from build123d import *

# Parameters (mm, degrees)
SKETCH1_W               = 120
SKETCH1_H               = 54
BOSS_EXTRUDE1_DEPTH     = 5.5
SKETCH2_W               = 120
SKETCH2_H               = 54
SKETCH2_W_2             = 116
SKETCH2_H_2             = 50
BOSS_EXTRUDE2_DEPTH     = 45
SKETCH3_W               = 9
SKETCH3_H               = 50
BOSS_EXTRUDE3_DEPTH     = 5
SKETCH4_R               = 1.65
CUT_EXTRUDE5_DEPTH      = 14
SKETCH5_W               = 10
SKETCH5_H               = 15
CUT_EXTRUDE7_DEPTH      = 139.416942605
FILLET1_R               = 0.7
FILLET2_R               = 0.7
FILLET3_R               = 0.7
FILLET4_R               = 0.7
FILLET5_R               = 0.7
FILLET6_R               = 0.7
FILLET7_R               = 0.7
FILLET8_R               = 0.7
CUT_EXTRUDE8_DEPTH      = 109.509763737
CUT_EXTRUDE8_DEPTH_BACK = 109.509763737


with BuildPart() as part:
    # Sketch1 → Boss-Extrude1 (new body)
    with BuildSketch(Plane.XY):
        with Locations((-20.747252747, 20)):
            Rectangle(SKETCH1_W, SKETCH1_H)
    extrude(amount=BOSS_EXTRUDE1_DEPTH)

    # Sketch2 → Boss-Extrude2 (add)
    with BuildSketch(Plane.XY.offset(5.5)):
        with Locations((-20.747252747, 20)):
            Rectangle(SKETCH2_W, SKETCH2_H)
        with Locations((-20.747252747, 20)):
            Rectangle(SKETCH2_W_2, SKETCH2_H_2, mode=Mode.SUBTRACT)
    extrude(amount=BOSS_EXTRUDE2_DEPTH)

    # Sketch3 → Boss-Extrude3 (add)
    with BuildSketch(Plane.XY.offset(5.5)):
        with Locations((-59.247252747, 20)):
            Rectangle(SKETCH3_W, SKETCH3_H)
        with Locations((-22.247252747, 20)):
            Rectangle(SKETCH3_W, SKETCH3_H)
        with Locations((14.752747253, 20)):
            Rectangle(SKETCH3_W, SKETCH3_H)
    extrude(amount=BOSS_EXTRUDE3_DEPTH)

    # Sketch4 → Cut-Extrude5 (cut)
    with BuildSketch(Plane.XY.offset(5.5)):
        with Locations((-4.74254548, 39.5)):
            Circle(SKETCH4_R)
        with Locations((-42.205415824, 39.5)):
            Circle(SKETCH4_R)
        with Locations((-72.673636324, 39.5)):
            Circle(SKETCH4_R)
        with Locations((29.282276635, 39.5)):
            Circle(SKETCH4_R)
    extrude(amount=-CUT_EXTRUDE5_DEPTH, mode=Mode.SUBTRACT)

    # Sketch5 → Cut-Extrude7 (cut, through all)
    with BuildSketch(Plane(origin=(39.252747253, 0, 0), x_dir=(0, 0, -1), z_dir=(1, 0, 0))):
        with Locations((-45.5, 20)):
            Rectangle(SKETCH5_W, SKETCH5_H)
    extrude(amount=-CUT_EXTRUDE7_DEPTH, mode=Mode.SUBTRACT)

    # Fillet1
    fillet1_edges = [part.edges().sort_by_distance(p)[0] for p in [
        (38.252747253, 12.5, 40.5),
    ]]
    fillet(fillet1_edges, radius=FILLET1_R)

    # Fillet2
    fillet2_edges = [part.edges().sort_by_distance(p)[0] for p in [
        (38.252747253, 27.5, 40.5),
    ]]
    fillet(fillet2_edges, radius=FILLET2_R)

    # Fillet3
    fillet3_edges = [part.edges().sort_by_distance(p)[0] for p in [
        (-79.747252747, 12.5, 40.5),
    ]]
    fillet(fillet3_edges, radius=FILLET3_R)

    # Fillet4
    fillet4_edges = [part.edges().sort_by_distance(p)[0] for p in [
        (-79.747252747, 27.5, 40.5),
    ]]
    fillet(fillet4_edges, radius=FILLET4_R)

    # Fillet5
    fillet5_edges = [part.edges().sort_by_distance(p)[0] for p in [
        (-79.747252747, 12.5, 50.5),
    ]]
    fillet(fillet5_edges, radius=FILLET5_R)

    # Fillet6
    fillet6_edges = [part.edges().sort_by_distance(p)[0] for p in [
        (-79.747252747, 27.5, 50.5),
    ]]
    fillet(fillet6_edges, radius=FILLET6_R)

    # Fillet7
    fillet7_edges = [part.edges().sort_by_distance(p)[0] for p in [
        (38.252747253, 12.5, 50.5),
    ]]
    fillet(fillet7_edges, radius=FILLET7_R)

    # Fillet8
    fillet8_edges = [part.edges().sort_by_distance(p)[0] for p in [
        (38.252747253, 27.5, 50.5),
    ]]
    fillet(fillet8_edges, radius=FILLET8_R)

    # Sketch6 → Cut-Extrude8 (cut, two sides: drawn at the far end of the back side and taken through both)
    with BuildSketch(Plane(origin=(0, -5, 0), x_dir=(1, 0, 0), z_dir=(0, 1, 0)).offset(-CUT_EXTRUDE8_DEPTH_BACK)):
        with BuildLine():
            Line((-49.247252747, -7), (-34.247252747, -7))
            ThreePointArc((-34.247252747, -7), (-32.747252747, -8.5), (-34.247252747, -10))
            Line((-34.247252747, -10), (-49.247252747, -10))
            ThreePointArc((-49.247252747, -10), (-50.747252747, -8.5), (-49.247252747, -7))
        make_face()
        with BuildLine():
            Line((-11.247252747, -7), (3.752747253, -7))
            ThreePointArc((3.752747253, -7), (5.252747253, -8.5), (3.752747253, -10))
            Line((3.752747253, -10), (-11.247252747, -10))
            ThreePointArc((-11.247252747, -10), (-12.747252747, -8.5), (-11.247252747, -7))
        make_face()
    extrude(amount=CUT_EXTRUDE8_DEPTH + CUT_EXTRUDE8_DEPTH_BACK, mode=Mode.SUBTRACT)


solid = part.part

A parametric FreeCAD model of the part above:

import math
import FreeCAD as App
import Part
import Sketcher

V = App.Vector
Q = App.Units.Quantity


def edges_at(feature, points):
    """Names of the edges that pass closest to the given points."""
    edges = feature.Shape.Edges
    near = lambda p: min(range(len(edges)), key=lambda i: edges[i].distToShape(Part.Vertex(*p))[0])
    return sorted({f"Edge{near(p) + 1}" for p in points})

doc = App.newDocument("Part")
body = doc.addObject("PartDesign::Body", "Body")

sketch1 = body.newObject("Sketcher::SketchObject", "Sketch")
sketch1.AttachmentSupport = (doc.getObject("XY_Plane"), [""])
sketch1.MapMode = "FlatFace"
sketch1.addGeometry([
    Part.LineSegment(V(-81, 47, 0), V(-81, -7, 0)),
    Part.LineSegment(V(-81, -7, 0), V(39, -7, 0)),
    Part.LineSegment(V(39, -7, 0), V(39, 47, 0)),
    Part.LineSegment(V(39, 47, 0), V(-81, 47, 0)),
], False)
sketch1.addConstraint([
    Sketcher.Constraint("Coincident", 0, 2, 1, 1),
    Sketcher.Constraint("Coincident", 1, 2, 2, 1),
    Sketcher.Constraint("Coincident", 2, 2, 3, 1),
    Sketcher.Constraint("Coincident", 3, 2, 0, 1),
    Sketcher.Constraint("Vertical", 0),
    Sketcher.Constraint("Horizontal", 1),
    Sketcher.Constraint("Vertical", 2),
    Sketcher.Constraint("Horizontal", 3),
    Sketcher.Constraint("DistanceX", 1, 1, 1, 2, Q("120 mm")),
    Sketcher.Constraint("DistanceY", 0, 2, 0, 1, Q("54 mm")),
    Sketcher.Constraint("DistanceY", 0, 2, -1, 1, Q("7 mm")),
    Sketcher.Constraint("DistanceX", 0, 2, -1, 1, Q("80.747253 mm")),
])
pad1 = body.newObject("PartDesign::Pad", "Pad")
pad1.Profile = sketch1
pad1.Length = 5.5

sketch2 = body.newObject("Sketcher::SketchObject", "Sketch001")
sketch2.AttachmentSupport = (doc.getObject("XY_Plane"), [""])
sketch2.MapMode = "FlatFace"
sketch2.AttachmentOffset = App.Placement(V(0, 0, 5.5), App.Rotation())
sketch2.addGeometry([
    Part.LineSegment(V(-81, 47, 0), V(-81, -7, 0)),
    Part.LineSegment(V(-81, -7, 0), V(39, -7, 0)),
    Part.LineSegment(V(39, -7, 0), V(39, 47, 0)),
    Part.LineSegment(V(39, 47, 0), V(-81, 47, 0)),
    Part.LineSegment(V(37, -5, 0), V(-79, -5, 0)),
    Part.LineSegment(V(-79, -5, 0), V(-79, 45, 0)),
    Part.LineSegment(V(-79, 45, 0), V(37, 45, 0)),
    Part.LineSegment(V(37, 45, 0), V(37, -5, 0)),
], False)
sketch2.addConstraint([
    Sketcher.Constraint("Coincident", 0, 2, 1, 1),
    Sketcher.Constraint("Coincident", 1, 2, 2, 1),
    Sketcher.Constraint("Coincident", 2, 2, 3, 1),
    Sketcher.Constraint("Coincident", 3, 2, 0, 1),
    Sketcher.Constraint("Coincident", 4, 2, 5, 1),
    Sketcher.Constraint("Coincident", 5, 2, 6, 1),
    Sketcher.Constraint("Coincident", 6, 2, 7, 1),
    Sketcher.Constraint("Coincident", 7, 2, 4, 1),
    Sketcher.Constraint("Vertical", 0),
    Sketcher.Constraint("Horizontal", 1),
    Sketcher.Constraint("Vertical", 2),
    Sketcher.Constraint("Horizontal", 3),
    Sketcher.Constraint("Horizontal", 4),
    Sketcher.Constraint("Vertical", 5),
    Sketcher.Constraint("Horizontal", 6),
    Sketcher.Constraint("Vertical", 7),
    Sketcher.Constraint("DistanceX", 1, 1, 1, 2, Q("120 mm")),
    Sketcher.Constraint("DistanceX", 4, 2, 4, 1, Q("116 mm")),
    Sketcher.Constraint("DistanceY", 0, 2, 0, 1, Q("54 mm")),
    Sketcher.Constraint("DistanceY", 5, 1, 5, 2, Q("50 mm")),
    Sketcher.Constraint("DistanceY", 0, 2, -1, 1, Q("7 mm")),
    Sketcher.Constraint("DistanceY", 4, 2, -1, 1, Q("5 mm")),
    Sketcher.Constraint("DistanceX", 0, 2, 4, 2, Q("2 mm")),
    Sketcher.Constraint("DistanceX", 0, 2, -1, 1, Q("80.747253 mm")),
])
pad2 = body.newObject("PartDesign::Pad", "Pad001")
pad2.Profile = sketch2
pad2.Length = 45

sketch3 = body.newObject("Sketcher::SketchObject", "Sketch002")
sketch3.AttachmentSupport = (doc.getObject("XY_Plane"), [""])
sketch3.MapMode = "FlatFace"
sketch3.AttachmentOffset = App.Placement(V(0, 0, 5.5), App.Rotation())
sketch3.addGeometry([
    Part.LineSegment(V(-64, 45, 0), V(-64, -5, 0)),
    Part.LineSegment(V(-64, -5, 0), V(-55, -5, 0)),
    Part.LineSegment(V(-55, -5, 0), V(-55, 45, 0)),
    Part.LineSegment(V(-55, 45, 0), V(-64, 45, 0)),
    Part.LineSegment(V(-27, 45, 0), V(-27, -5, 0)),
    Part.LineSegment(V(-27, -5, 0), V(-18, -5, 0)),
    Part.LineSegment(V(-18, -5, 0), V(-18, 45, 0)),
    Part.LineSegment(V(-18, 45, 0), V(-27, 45, 0)),
    Part.LineSegment(V(10, 45, 0), V(10, -5, 0)),
    Part.LineSegment(V(10, -5, 0), V(19, -5, 0)),
    Part.LineSegment(V(19, -5, 0), V(19, 45, 0)),
    Part.LineSegment(V(19, 45, 0), V(10, 45, 0)),
], False)
sketch3.addConstraint([
    Sketcher.Constraint("Coincident", 0, 2, 1, 1),
    Sketcher.Constraint("Coincident", 1, 2, 2, 1),
    Sketcher.Constraint("Coincident", 2, 2, 3, 1),
    Sketcher.Constraint("Coincident", 3, 2, 0, 1),
    Sketcher.Constraint("Coincident", 4, 2, 5, 1),
    Sketcher.Constraint("Coincident", 5, 2, 6, 1),
    Sketcher.Constraint("Coincident", 6, 2, 7, 1),
    Sketcher.Constraint("Coincident", 7, 2, 4, 1),
    Sketcher.Constraint("Coincident", 8, 2, 9, 1),
    Sketcher.Constraint("Coincident", 9, 2, 10, 1),
    Sketcher.Constraint("Coincident", 10, 2, 11, 1),
    Sketcher.Constraint("Coincident", 11, 2, 8, 1),
    Sketcher.Constraint("Vertical", 0),
    Sketcher.Constraint("Horizontal", 1),
    Sketcher.Constraint("Vertical", 2),
    Sketcher.Constraint("Horizontal", 3),
    Sketcher.Constraint("Vertical", 4),
    Sketcher.Constraint("Horizontal", 5),
    Sketcher.Constraint("Vertical", 6),
    Sketcher.Constraint("Horizontal", 7),
    Sketcher.Constraint("Vertical", 8),
    Sketcher.Constraint("Horizontal", 9),
    Sketcher.Constraint("Vertical", 10),
    Sketcher.Constraint("Horizontal", 11),
    Sketcher.Constraint("Horizontal", 1, 2, 4, 2),
    Sketcher.Constraint("Horizontal", 3, 2, 6, 2),
    Sketcher.Constraint("Horizontal", 5, 2, 8, 2),
    Sketcher.Constraint("Horizontal", 7, 2, 10, 2),
    Sketcher.Constraint("Equal", 3, 5),
    Sketcher.Constraint("Equal", 7, 9),
    Sketcher.Constraint("DistanceX", 1, 1, 1, 2, Q("9 mm")),
    Sketcher.Constraint("DistanceY", 0, 2, 0, 1, Q("50 mm")),
    Sketcher.Constraint("DistanceY", 0, 2, -1, 1, Q("5 mm")),
    Sketcher.Constraint("DistanceX", 1, 2, 4, 2, Q("28 mm")),
    Sketcher.Constraint("DistanceX", 5, 2, 8, 2, Q("28 mm")),
    Sketcher.Constraint("DistanceX", 0, 2, -1, 1, Q("63.747253 mm")),
])
pad3 = body.newObject("PartDesign::Pad", "Pad002")
pad3.Profile = sketch3
pad3.Length = 5

sketch4 = body.newObject("Sketcher::SketchObject", "Sketch003")
sketch4.AttachmentSupport = (doc.getObject("XY_Plane"), [""])
sketch4.MapMode = "FlatFace"
sketch4.AttachmentOffset = App.Placement(V(0, 0, 5.5), App.Rotation())
sketch4.addGeometry([
    Part.Circle(V(-4.7, 39.5, 0), V(0, 0, 1), 1.6),
    Part.Circle(V(-42.2, 39.5, 0), V(0, 0, 1), 1.6),
    Part.Circle(V(-72.7, 39.5, 0), V(0, 0, 1), 1.6),
    Part.Circle(V(29.3, 39.5, 0), V(0, 0, 1), 1.6),
], False)
sketch4.addConstraint([
    Sketcher.Constraint("Equal", 0, 1),
    Sketcher.Constraint("Equal", 1, 2),
    Sketcher.Constraint("Equal", 2, 3),
    Sketcher.Constraint("Horizontal", 0, 3, 1, 3),
    Sketcher.Constraint("Horizontal", 1, 3, 2, 3),
    Sketcher.Constraint("Horizontal", 2, 3, 3, 3),
    Sketcher.Constraint("Diameter", 0, Q("3.3 mm")),
    Sketcher.Constraint("DistanceY", -1, 1, 0, 3, Q("39.5 mm")),
    Sketcher.Constraint("DistanceX", 1, 3, 0, 3, Q("37.46287 mm")),
    Sketcher.Constraint("DistanceX", 2, 3, 1, 3, Q("30.468221 mm")),
    Sketcher.Constraint("DistanceX", 0, 3, -1, 1, Q("4.742545 mm")),
    Sketcher.Constraint("DistanceX", -1, 1, 3, 3, Q("29.282277 mm")),
])
pocket1 = body.newObject("PartDesign::Pocket", "Pocket")
pocket1.Profile = sketch4
pocket1.Length = 14

sketch5 = body.newObject("Sketcher::SketchObject", "Sketch004")
sketch5.AttachmentSupport = (doc.getObject("YZ_Plane"), [""])
sketch5.MapMode = "FlatFace"
sketch5.AttachmentOffset = App.Placement(V(0, 0, 39.252747), App.Rotation())
sketch5.addGeometry([
    Part.LineSegment(V(28, 50, 0), V(12, 50, 0)),
    Part.LineSegment(V(12, 50, 0), V(12, 40, 0)),
    Part.LineSegment(V(12, 40, 0), V(28, 40, 0)),
    Part.LineSegment(V(28, 40, 0), V(28, 50, 0)),
], False)
sketch5.addConstraint([
    Sketcher.Constraint("Coincident", 0, 2, 1, 1),
    Sketcher.Constraint("Coincident", 1, 2, 2, 1),
    Sketcher.Constraint("Coincident", 2, 2, 3, 1),
    Sketcher.Constraint("Coincident", 3, 2, 0, 1),
    Sketcher.Constraint("Horizontal", 0),
    Sketcher.Constraint("Vertical", 1),
    Sketcher.Constraint("Horizontal", 2),
    Sketcher.Constraint("Vertical", 3),
    Sketcher.Constraint("DistanceX", 0, 2, 0, 1, Q("15 mm")),
    Sketcher.Constraint("DistanceY", 1, 2, 1, 1, Q("10 mm")),
    Sketcher.Constraint("DistanceX", -1, 1, 0, 2, Q("12.5 mm")),
    Sketcher.Constraint("DistanceY", -1, 1, 0, 2, Q("50.5 mm")),
])
pocket2 = body.newObject("PartDesign::Pocket", "Pocket001")
pocket2.Profile = sketch5
pocket2.Type = "ThroughAll"
doc.recompute()

fillet = body.newObject("PartDesign::Fillet", "Fillet")
fillet.Base = (pocket2, edges_at(pocket2, [(38.253, 12.5, 40.5)]))
fillet.Radius = 0.7
doc.recompute()

fillet2 = body.newObject("PartDesign::Fillet", "Fillet001")
fillet2.Base = (fillet, edges_at(fillet, [(38.253, 27.5, 40.5)]))
fillet2.Radius = 0.7
doc.recompute()

fillet3 = body.newObject("PartDesign::Fillet", "Fillet002")
fillet3.Base = (fillet2, edges_at(fillet2, [(-79.747, 12.5, 40.5)]))
fillet3.Radius = 0.7
doc.recompute()

fillet4 = body.newObject("PartDesign::Fillet", "Fillet003")
fillet4.Base = (fillet3, edges_at(fillet3, [(-79.747, 27.5, 40.5)]))
fillet4.Radius = 0.7
doc.recompute()

fillet5 = body.newObject("PartDesign::Fillet", "Fillet004")
fillet5.Base = (fillet4, edges_at(fillet4, [(-79.747, 12.5, 50.5)]))
fillet5.Radius = 0.7
doc.recompute()

fillet6 = body.newObject("PartDesign::Fillet", "Fillet005")
fillet6.Base = (fillet5, edges_at(fillet5, [(-79.747, 27.5, 50.5)]))
fillet6.Radius = 0.7
doc.recompute()

fillet7 = body.newObject("PartDesign::Fillet", "Fillet006")
fillet7.Base = (fillet6, edges_at(fillet6, [(38.253, 12.5, 50.5)]))
fillet7.Radius = 0.7
doc.recompute()

fillet8 = body.newObject("PartDesign::Fillet", "Fillet007")
fillet8.Base = (fillet7, edges_at(fillet7, [(38.253, 27.5, 50.5)]))
fillet8.Radius = 0.7

sketch6 = body.newObject("Sketcher::SketchObject", "Sketch005")
sketch6.AttachmentSupport = (doc.getObject("XZ_Plane"), [""])
sketch6.MapMode = "FlatFace"
sketch6.AttachmentOffset = App.Placement(V(0, 0, 5), App.Rotation())
sketch6.addGeometry([
    Part.LineSegment(V(-34.2, 7, 0), V(-49.2, 7, 0)),
    Part.ArcOfCircle(Part.Circle(V(-49.2, 8.5, 0), V(0, 0, 1), 1.5), math.radians(90), math.radians(270)),
    Part.LineSegment(V(-49.2, 10, 0), V(-34.2, 10, 0)),
    Part.ArcOfCircle(Part.Circle(V(-34.2, 8.5, 0), V(0, 0, 1), 1.5), math.radians(-90), math.radians(90)),
    Part.LineSegment(V(3.8, 7, 0), V(-11.2, 7, 0)),
    Part.ArcOfCircle(Part.Circle(V(-11.2, 8.5, 0), V(0, 0, 1), 1.5), math.radians(90), math.radians(270)),
    Part.LineSegment(V(-11.2, 10, 0), V(3.8, 10, 0)),
    Part.ArcOfCircle(Part.Circle(V(3.8, 8.5, 0), V(0, 0, 1), 1.5), math.radians(-90), math.radians(90)),
], False)
sketch6.addConstraint([
    Sketcher.Constraint("Tangent", 0, 2, 1, 2),
    Sketcher.Constraint("Tangent", 1, 1, 2, 1),
    Sketcher.Constraint("Tangent", 2, 2, 3, 2),
    Sketcher.Constraint("Tangent", 3, 1, 0, 1),
    Sketcher.Constraint("Tangent", 4, 2, 5, 2),
    Sketcher.Constraint("Tangent", 5, 1, 6, 1),
    Sketcher.Constraint("Tangent", 6, 2, 7, 2),
    Sketcher.Constraint("Tangent", 7, 1, 4, 1),
    Sketcher.Constraint("Horizontal", 0),
    Sketcher.Constraint("Horizontal", 2),
    Sketcher.Constraint("Horizontal", 4),
    Sketcher.Constraint("Horizontal", 6),
    Sketcher.Constraint("Equal", 3, 5),
    Sketcher.Constraint("Horizontal", 3, 3, 5, 3),
    Sketcher.Constraint("Equal", 2, 4),
    Sketcher.Constraint("Radius", 1, Q("1.5 mm")),
    Sketcher.Constraint("DistanceX", 0, 2, 0, 1, Q("15 mm")),
    Sketcher.Constraint("DistanceY", -1, 1, 0, 2, Q("7 mm")),
    Sketcher.Constraint("DistanceX", 3, 3, 5, 3, Q("23 mm")),
    Sketcher.Constraint("DistanceX", 1, 3, -1, 1, Q("49.247253 mm")),
])
pocket3 = body.newObject("PartDesign::Pocket", "Pocket002")
pocket3.Profile = sketch6
pocket3.Type = "ThroughAll"
pocket3.Midplane = True

doc.recompute()
